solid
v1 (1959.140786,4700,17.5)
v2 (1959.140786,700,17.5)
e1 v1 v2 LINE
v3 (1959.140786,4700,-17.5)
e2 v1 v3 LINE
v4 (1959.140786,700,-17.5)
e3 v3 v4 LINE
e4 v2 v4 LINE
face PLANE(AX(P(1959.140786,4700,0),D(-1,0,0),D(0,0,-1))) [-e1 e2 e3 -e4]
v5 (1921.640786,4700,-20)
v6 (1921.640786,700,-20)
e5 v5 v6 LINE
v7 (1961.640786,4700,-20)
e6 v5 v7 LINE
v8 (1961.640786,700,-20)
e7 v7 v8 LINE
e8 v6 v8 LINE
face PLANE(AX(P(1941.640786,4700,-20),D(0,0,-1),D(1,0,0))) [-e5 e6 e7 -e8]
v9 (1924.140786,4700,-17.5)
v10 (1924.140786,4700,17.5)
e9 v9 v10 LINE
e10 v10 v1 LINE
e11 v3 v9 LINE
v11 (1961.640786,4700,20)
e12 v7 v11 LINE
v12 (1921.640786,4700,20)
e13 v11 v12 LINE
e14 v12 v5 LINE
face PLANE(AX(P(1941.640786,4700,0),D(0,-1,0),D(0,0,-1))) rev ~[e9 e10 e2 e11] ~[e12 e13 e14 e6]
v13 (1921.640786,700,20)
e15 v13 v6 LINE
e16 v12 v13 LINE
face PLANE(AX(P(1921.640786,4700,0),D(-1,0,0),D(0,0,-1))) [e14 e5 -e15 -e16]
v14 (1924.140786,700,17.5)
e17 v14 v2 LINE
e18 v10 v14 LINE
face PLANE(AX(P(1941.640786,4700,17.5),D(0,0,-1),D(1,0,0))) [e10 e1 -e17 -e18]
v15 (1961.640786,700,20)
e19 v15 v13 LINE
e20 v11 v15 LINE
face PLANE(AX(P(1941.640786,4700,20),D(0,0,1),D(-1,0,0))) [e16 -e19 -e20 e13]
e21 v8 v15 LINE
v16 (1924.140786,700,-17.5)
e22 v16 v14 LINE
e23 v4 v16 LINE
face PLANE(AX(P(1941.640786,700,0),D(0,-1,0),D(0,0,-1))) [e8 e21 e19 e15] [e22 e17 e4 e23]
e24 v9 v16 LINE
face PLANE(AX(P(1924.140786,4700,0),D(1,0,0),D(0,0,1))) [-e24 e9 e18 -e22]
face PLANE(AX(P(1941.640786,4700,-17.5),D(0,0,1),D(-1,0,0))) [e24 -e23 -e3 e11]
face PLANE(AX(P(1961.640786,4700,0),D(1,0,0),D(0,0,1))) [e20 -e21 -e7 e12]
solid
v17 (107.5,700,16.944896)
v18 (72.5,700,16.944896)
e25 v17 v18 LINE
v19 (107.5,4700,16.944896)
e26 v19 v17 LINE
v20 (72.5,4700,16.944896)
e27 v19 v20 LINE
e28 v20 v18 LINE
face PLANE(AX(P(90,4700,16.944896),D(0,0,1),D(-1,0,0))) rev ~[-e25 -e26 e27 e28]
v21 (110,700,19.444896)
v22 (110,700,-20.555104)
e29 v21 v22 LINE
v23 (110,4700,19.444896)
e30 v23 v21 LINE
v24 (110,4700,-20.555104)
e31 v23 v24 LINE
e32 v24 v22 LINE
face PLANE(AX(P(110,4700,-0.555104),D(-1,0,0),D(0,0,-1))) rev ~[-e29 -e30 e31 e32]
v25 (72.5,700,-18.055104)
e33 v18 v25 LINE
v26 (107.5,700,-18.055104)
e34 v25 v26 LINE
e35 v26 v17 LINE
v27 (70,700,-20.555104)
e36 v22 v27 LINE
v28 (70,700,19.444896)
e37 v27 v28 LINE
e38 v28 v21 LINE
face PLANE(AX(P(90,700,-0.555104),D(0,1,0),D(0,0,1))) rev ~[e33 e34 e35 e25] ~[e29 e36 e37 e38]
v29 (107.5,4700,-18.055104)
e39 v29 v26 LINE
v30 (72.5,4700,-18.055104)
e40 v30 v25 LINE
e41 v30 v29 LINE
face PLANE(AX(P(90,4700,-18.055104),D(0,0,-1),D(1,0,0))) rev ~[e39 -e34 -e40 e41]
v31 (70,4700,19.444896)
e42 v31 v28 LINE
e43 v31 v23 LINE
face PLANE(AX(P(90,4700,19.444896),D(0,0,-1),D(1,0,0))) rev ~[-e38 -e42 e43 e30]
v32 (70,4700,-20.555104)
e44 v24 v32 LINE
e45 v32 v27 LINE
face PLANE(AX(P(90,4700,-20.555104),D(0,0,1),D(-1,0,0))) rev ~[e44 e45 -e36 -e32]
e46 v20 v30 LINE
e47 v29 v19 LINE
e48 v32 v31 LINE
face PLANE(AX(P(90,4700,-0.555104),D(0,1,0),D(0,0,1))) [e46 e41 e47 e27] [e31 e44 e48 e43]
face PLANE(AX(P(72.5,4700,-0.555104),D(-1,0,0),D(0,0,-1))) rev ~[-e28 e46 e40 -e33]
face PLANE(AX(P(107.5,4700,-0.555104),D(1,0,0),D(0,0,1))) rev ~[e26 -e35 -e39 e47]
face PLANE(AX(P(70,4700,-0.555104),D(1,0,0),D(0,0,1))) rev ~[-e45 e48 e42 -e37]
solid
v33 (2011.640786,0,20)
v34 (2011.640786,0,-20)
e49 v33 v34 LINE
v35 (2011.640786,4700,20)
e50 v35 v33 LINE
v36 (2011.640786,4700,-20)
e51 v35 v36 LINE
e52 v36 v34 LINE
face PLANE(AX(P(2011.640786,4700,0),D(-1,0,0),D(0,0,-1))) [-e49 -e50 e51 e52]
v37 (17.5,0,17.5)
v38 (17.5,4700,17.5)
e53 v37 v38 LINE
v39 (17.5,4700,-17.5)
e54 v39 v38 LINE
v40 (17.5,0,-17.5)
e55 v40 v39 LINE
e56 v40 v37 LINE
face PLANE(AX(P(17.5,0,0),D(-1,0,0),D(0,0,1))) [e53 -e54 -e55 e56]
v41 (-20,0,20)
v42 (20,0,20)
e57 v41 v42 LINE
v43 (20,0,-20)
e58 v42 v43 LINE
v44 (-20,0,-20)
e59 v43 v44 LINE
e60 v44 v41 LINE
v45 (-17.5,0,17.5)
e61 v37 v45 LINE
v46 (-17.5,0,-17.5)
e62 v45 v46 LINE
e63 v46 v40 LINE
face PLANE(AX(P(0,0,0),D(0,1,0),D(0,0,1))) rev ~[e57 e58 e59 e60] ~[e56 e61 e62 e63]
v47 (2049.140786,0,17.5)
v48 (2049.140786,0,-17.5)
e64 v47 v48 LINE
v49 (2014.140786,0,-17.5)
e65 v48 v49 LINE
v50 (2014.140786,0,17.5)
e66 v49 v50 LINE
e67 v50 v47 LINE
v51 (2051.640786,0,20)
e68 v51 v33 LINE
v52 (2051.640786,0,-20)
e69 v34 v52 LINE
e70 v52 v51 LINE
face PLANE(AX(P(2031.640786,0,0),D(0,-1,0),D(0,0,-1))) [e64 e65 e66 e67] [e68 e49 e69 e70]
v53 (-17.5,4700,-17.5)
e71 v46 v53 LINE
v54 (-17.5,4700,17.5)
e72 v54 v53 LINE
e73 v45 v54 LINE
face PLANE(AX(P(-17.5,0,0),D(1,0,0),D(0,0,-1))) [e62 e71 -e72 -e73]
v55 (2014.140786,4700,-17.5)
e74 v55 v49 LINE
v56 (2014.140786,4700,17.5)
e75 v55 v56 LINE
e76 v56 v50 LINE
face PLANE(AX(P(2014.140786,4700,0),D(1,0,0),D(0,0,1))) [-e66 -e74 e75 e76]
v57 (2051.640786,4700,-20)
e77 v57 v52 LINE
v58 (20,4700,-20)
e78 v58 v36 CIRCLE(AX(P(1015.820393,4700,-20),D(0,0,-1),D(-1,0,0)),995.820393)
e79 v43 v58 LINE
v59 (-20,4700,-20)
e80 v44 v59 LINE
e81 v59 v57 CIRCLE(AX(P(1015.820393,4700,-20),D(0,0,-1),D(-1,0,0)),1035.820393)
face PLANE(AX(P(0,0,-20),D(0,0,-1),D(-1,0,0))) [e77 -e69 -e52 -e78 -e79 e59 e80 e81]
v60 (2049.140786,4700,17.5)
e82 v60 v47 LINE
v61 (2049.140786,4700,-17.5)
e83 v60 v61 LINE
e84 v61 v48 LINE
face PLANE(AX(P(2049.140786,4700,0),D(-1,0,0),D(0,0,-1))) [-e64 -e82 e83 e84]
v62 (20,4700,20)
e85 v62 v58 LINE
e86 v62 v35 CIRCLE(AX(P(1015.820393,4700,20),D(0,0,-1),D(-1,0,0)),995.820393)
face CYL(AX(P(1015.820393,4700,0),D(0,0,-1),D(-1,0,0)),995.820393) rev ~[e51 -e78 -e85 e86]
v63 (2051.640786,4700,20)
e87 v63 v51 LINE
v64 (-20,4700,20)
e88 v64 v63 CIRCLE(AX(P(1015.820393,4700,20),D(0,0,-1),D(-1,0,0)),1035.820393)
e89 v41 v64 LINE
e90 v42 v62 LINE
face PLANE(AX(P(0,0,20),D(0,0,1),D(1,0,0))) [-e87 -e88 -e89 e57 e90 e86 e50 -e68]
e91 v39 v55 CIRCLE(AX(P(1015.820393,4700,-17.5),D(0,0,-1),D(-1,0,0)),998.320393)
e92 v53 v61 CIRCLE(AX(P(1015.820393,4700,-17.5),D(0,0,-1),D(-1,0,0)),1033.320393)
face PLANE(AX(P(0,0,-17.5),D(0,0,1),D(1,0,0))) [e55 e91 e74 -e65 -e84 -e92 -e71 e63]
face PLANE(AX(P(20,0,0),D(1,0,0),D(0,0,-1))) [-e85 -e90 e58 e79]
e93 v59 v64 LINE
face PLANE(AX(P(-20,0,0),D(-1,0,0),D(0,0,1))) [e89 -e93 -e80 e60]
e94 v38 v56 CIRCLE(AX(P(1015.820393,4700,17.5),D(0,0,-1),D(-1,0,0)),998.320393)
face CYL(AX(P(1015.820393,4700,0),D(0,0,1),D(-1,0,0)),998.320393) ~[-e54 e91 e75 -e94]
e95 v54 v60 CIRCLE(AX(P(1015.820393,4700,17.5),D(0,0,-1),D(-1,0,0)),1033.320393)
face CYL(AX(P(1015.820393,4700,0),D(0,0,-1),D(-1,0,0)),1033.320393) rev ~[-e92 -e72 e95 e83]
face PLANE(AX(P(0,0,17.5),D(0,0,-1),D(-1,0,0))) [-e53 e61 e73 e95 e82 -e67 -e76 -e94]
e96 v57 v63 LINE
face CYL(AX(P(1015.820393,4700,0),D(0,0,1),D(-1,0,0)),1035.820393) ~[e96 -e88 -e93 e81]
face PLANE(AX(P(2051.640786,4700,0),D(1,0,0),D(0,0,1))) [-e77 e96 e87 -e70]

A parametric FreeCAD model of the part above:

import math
import FreeCAD as App
import Part
import Sketcher
Q = App.Units.Quantity


def add_polygon(sketch, points):
    """Adds a closed chain of lines whose ends are joined by coincident constraints."""
    first, n = sketch.GeometryCount, len(points)
    for a, b in zip(points, points[1:] + points[:1]):
        sketch.addGeometry(Part.LineSegment(App.Vector(*a, 0), App.Vector(*b, 0)), False)
    for i in range(n):
        sketch.addConstraint(Sketcher.Constraint("Coincident", first + i, 2, first + (i + 1) % n, 1))

doc = App.newDocument("Part")
body = doc.addObject("PartDesign::Body", "Body")

sketch1 = body.newObject("Sketcher::SketchObject", "Sketch")
sketch1.AttachmentSupport = (doc.getObject("XZ_Plane"), [""])
sketch1.MapMode = "FlatFace"
add_polygon(sketch1, [(-20, -20), (-20, 20), (20, 20), (20, -20)])
add_polygon(sketch1, [(18, 18), (-18, 18), (-18, -18), (18, -18)])
sketch1.addConstraint(Sketcher.Constraint("Vertical", 0))
sketch1.addConstraint(Sketcher.Constraint("Horizontal", 1))
sketch1.addConstraint(Sketcher.Constraint("Vertical", 2))
sketch1.addConstraint(Sketcher.Constraint("Horizontal", 3))
sketch1.addConstraint(Sketcher.Constraint("Horizontal", 4))
sketch1.addConstraint(Sketcher.Constraint("Vertical", 5))
sketch1.addConstraint(Sketcher.Constraint("Horizontal", 6))
sketch1.addConstraint(Sketcher.Constraint("Vertical", 7))
sketch1.addConstraint(Sketcher.Constraint("Symmetric", 0, 2, 2, 2, -1, 1))
sketch1.addConstraint(Sketcher.Constraint("Symmetric", 4, 2, 6, 2, -1, 1))
sketch1.addConstraint(Sketcher.Constraint("Equal", 3, 0))
sketch1.addConstraint(Sketcher.Constraint("Equal", 6, 5))
sketch1.addConstraint(Sketcher.Constraint("DistanceX", 1, 1, 1, 2, Q("40 mm")))
sketch1.addConstraint(Sketcher.Constraint("DistanceX", 4, 2, 4, 1, Q("35 mm")))

sketch2 = body.newObject("Sketcher::SketchObject", "Sketch001")
sketch2.AttachmentSupport = (doc.getObject("XY_Plane"), [""])
sketch2.MapMode = "FlatFace"
sketch2.addGeometry(Part.LineSegment(App.Vector(0, 0, 0), App.Vector(0, 4700, 0)), False)
sketch2.addGeometry(Part.ArcOfCircle(Part.Circle(App.Vector(1016, 4700, 0), App.Vector(0, 0, 1), 1016), math.radians(0), math.radians(180)), False)
sketch2.addGeometry(Part.LineSegment(App.Vector(2032, 4700, 0), App.Vector(2032, 0, 0)), False)
sketch2.addConstraint(Sketcher.Constraint("Coincident", 0, 2, 1, 2))
sketch2.addConstraint(Sketcher.Constraint("Coincident", 1, 1, 2, 1))
sketch2.addConstraint(Sketcher.Constraint("Vertical", 0))
sketch2.addConstraint(Sketcher.Constraint("Vertical", 2))
sketch2.addConstraint(Sketcher.Constraint("Coincident", 0, 1, -1, 1))
sketch2.addConstraint(Sketcher.Constraint("PointOnObject", 2, 2, -1))
sketch2.addConstraint(Sketcher.Constraint("Horizontal", 1, 3, 0, 2))
sketch2.addConstraint(Sketcher.Constraint("Equal", 0, 2))
sketch2.addConstraint(Sketcher.Constraint("DistanceY", 0, 1, 0, 2, Q("4700 mm")))
sketch2.addConstraint(Sketcher.Constraint("Radius", 1, Q("1015.820393 mm")))
doc.recompute()

additivepipe = body.newObject("PartDesign::AdditivePipe", "AdditivePipe")
additivepipe.Profile = sketch1
additivepipe.Spine = (sketch2, ["Edge1", "Edge2", "Edge3"])
body2 = doc.addObject("PartDesign::Body", "Body001")

sketch3 = body2.newObject("Sketcher::SketchObject", "Sketch002")
sketch3.AttachmentSupport = (doc.getObject("XZ_Plane001"), [""])
sketch3.MapMode = "FlatFace"
sketch3.AttachmentOffset = App.Placement(App.Vector(0, 0, -4700), App.Rotation())
add_polygon(sketch3, [(70, -21), (70, 19), (110, 19), (110, -21)])
add_polygon(sketch3, [(108, 17), (72, 17), (72, -18), (108, -18)])
sketch3.addConstraint(Sketcher.Constraint("Vertical", 0))
sketch3.addConstraint(Sketcher.Constraint("Horizontal", 1))
sketch3.addConstraint(Sketcher.Constraint("Vertical", 2))
sketch3.addConstraint(Sketcher.Constraint("Horizontal", 3))
sketch3.addConstraint(Sketcher.Constraint("Horizontal", 4))
sketch3.addConstraint(Sketcher.Constraint("Vertical", 5))
sketch3.addConstraint(Sketcher.Constraint("Horizontal", 6))
sketch3.addConstraint(Sketcher.Constraint("Vertical", 7))
sketch3.addConstraint(Sketcher.Constraint("Equal", 3, 0))
sketch3.addConstraint(Sketcher.Constraint("Equal", 6, 5))
sketch3.addConstraint(Sketcher.Constraint("DistanceX", 1, 1, 1, 2, Q("40 mm")))
sketch3.addConstraint(Sketcher.Constraint("DistanceX", 4, 2, 4, 1, Q("35 mm")))
sketch3.addConstraint(Sketcher.Constraint("DistanceX", -1, 1, 0, 2, Q("70 mm")))
sketch3.addConstraint(Sketcher.Constraint("DistanceX", -1, 1, 4, 2, Q("72.5 mm")))
sketch3.addConstraint(Sketcher.Constraint("DistanceY", 4, 2, 0, 2, Q("2.5 mm")))
sketch3.addConstraint(Sketcher.Constraint("DistanceY", -1, 1, 0, 2, Q("19.444896 mm")))

sketch4 = body2.newObject("Sketcher::SketchObject", "Sketch003")
sketch4.AttachmentSupport = (doc.getObject("XY_Plane001"), [""])
sketch4.MapMode = "FlatFace"
sketch4.addGeometry(Part.LineSegment(App.Vector(90, 4700, 0), App.Vector(90, 700, 0)), False)
sketch4.addConstraint(Sketcher.Constraint("Vertical", 0))
sketch4.addConstraint(Sketcher.Constraint("DistanceY", 0, 2, 0, 1, Q("4000 mm")))
sketch4.addConstraint(Sketcher.Constraint("DistanceX", -1, 1, 0, 1, Q("90 mm")))
sketch4.addConstraint(Sketcher.Constraint("DistanceY", -1, 1, 0, 1, Q("4700 mm")))
doc.recompute()

additivepipe2 = body2.newObject("PartDesign::AdditivePipe", "AdditivePipe001")
additivepipe2.Profile = sketch3
additivepipe2.Spine = (sketch4, ["Edge1"])
body3 = doc.addObject("PartDesign::Body", "Body002")

sketch5 = body3.newObject("Sketcher::SketchObject", "Sketch004")
sketch5.AttachmentSupport = (doc.getObject("XZ_Plane002"), [""])
sketch5.MapMode = "FlatFace"
sketch5.AttachmentOffset = App.Placement(App.Vector(0, 0, -4700), App.Rotation())
add_polygon(sketch5, [(1922, 20), (1922, -20), (1962, -20), (1962, 20)])
add_polygon(sketch5, [(1959, -18), (1924, -18), (1924, 18), (1959, 18)])
sketch5.addConstraint(Sketcher.Constraint("Vertical", 0))
sketch5.addConstraint(Sketcher.Constraint("Horizontal", 1))
sketch5.addConstraint(Sketcher.Constraint("Vertical", 2))
sketch5.addConstraint(Sketcher.Constraint("Horizontal", 3))
sketch5.addConstraint(Sketcher.Constraint("Horizontal", 4))
sketch5.addConstraint(Sketcher.Constraint("Vertical", 5))
sketch5.addConstraint(Sketcher.Constraint("Horizontal", 6))
sketch5.addConstraint(Sketcher.Constraint("Vertical", 7))
sketch5.addConstraint(Sketcher.Constraint("Equal", 3, 0))
sketch5.addConstraint(Sketcher.Constraint("Equal", 6, 5))
sketch5.addConstraint(Sketcher.Constraint("DistanceX", 1, 1, 1, 2, Q("40 mm")))
sketch5.addConstraint(Sketcher.Constraint("DistanceX", 4, 2, 4, 1, Q("35 mm")))
sketch5.addConstraint(Sketcher.Constraint("DistanceY", 0, 2, -1, 1, Q("20 mm")))
sketch5.addConstraint(Sketcher.Constraint("DistanceY", 4, 2, -1, 1, Q("17.5 mm")))
sketch5.addConstraint(Sketcher.Constraint("DistanceX", 0, 2, 4, 2, Q("2.5 mm")))
sketch5.addConstraint(Sketcher.Constraint("DistanceX", -1, 1, 0, 2, Q("1921.640786 mm")))

sketch6 = body3.newObject("Sketcher::SketchObject", "Sketch005")
sketch6.AttachmentSupport = (doc.getObject("XY_Plane002"), [""])
sketch6.MapMode = "FlatFace"
sketch6.addGeometry(Part.LineSegment(App.Vector(1942, 4700, 0), App.Vector(1942, 700, 0)), False)
sketch6.addConstraint(Sketcher.Constraint("Vertical", 0))
sketch6.addConstraint(Sketcher.Constraint("DistanceY", 0, 2, 0, 1, Q("4000 mm")))
sketch6.addConstraint(Sketcher.Constraint("DistanceY", -1, 1, 0, 1, Q("4700 mm")))
sketch6.addConstraint(Sketcher.Constraint("DistanceX", -1, 1, 0, 1, Q("1941.640786 mm")))
doc.recompute()

additivepipe3 = body3.newObject("PartDesign::AdditivePipe", "AdditivePipe002")
additivepipe3.Profile = sketch5
additivepipe3.Spine = (sketch6, ["Edge1"])

doc.recompute()
